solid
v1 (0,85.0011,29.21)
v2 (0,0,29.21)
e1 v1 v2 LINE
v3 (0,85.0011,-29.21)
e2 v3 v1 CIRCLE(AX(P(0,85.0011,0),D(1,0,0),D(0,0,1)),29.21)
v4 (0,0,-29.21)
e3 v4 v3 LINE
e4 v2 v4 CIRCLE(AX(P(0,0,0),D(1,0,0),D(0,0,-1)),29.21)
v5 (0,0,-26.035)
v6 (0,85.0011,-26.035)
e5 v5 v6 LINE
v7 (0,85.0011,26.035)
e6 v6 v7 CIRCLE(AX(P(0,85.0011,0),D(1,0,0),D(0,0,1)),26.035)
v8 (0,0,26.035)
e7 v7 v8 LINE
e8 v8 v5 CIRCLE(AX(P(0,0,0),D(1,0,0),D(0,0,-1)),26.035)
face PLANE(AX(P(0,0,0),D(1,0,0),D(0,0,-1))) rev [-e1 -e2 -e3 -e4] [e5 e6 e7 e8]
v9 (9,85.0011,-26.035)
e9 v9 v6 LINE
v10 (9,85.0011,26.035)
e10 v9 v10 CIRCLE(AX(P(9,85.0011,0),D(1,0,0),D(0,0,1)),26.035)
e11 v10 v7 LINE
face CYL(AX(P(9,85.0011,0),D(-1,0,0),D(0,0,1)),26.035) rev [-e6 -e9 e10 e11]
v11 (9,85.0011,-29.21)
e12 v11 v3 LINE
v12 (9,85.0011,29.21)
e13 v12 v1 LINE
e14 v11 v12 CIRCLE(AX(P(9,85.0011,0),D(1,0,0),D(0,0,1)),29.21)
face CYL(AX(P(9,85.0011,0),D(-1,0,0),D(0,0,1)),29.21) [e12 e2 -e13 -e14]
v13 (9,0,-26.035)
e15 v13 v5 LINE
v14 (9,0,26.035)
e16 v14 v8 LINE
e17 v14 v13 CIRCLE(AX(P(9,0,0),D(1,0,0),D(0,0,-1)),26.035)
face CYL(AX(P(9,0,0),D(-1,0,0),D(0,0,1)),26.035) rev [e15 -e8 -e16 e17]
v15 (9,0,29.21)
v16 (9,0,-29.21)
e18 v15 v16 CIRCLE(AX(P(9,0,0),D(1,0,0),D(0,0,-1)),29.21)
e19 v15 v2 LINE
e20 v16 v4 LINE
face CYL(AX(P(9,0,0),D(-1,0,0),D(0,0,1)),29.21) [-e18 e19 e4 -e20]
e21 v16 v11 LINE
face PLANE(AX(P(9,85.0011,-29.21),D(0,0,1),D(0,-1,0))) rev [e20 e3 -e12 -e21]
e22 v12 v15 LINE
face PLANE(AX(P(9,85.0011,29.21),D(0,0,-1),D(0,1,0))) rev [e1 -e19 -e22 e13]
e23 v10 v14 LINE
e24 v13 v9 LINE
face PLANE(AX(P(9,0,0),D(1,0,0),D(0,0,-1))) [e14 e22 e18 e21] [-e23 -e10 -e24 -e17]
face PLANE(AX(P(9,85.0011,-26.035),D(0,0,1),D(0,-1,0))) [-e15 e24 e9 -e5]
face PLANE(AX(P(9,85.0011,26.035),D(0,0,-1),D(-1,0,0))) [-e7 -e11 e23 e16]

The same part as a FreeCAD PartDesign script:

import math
import FreeCAD as App
import Part
import Sketcher
Q = App.Units.Quantity

doc = App.newDocument("Part")
body = doc.addObject("PartDesign::Body", "Body")

sketch1 = body.newObject("Sketcher::SketchObject", "Sketch")
sketch1.AttachmentSupport = (doc.getObject("YZ_Plane"), [""])
sketch1.MapMode = "FlatFace"
sketch1.addGeometry([
    Part.LineSegment(App.Vector(85, 29, 0), App.Vector(0, 29, 0)),
    Part.ArcOfCircle(Part.Circle(App.Vector(0, 0, 0), App.Vector(0, 0, 1), 29), math.radians(90), math.radians(270)),
    Part.LineSegment(App.Vector(0, -29, 0), App.Vector(85, -29, 0)),
    Part.ArcOfCircle(Part.Circle(App.Vector(85, 0, 0), App.Vector(0, 0, 1), 29), math.radians(-90), math.radians(90)),
    Part.ArcOfCircle(Part.Circle(App.Vector(85, 0, 0), App.Vector(0, 0, 1), 26), math.radians(-90), math.radians(90)),
    Part.LineSegment(App.Vector(85, -26, 0), App.Vector(0, -26, 0)),
    Part.ArcOfCircle(Part.Circle(App.Vector(0, 0, 0), App.Vector(0, 0, 1), 26), math.radians(90), math.radians(270)),
    Part.LineSegment(App.Vector(0, 26, 0), App.Vector(85, 26, 0)),
], False)
sketch1.addConstraint([
    Sketcher.Constraint("Tangent", 0, 2, 1, 1),
    Sketcher.Constraint("Tangent", 1, 2, 2, 1),
    Sketcher.Constraint("Tangent", 2, 2, 3, 1),
    Sketcher.Constraint("Tangent", 3, 2, 0, 1),
    Sketcher.Constraint("Tangent", 4, 1, 5, 1),
    Sketcher.Constraint("Tangent", 5, 2, 6, 2),
    Sketcher.Constraint("Tangent", 6, 1, 7, 1),
    Sketcher.Constraint("Tangent", 7, 2, 4, 2),
    Sketcher.Constraint("Horizontal", 0),
    Sketcher.Constraint("Horizontal", 2),
    Sketcher.Constraint("Horizontal", 5),
    Sketcher.Constraint("Horizontal", 7),
    Sketcher.Constraint("Coincident", 1, 3, -1, 1),
    Sketcher.Constraint("Coincident", 6, 3, -1, 1),
    Sketcher.Constraint("Vertical", 4, 3, 2, 2),
    Sketcher.Constraint("Radius", 1, Q("1.15 in")),
    Sketcher.Constraint("Radius", 4, Q("1.025 in")),
    Sketcher.Constraint("DistanceX", 0, 2, 0, 1, Q("3.3465 in")),
])
pad1 = body.newObject("PartDesign::Pad", "Pad")
pad1.Profile = sketch1
pad1.Length = 9

doc.recompute()
